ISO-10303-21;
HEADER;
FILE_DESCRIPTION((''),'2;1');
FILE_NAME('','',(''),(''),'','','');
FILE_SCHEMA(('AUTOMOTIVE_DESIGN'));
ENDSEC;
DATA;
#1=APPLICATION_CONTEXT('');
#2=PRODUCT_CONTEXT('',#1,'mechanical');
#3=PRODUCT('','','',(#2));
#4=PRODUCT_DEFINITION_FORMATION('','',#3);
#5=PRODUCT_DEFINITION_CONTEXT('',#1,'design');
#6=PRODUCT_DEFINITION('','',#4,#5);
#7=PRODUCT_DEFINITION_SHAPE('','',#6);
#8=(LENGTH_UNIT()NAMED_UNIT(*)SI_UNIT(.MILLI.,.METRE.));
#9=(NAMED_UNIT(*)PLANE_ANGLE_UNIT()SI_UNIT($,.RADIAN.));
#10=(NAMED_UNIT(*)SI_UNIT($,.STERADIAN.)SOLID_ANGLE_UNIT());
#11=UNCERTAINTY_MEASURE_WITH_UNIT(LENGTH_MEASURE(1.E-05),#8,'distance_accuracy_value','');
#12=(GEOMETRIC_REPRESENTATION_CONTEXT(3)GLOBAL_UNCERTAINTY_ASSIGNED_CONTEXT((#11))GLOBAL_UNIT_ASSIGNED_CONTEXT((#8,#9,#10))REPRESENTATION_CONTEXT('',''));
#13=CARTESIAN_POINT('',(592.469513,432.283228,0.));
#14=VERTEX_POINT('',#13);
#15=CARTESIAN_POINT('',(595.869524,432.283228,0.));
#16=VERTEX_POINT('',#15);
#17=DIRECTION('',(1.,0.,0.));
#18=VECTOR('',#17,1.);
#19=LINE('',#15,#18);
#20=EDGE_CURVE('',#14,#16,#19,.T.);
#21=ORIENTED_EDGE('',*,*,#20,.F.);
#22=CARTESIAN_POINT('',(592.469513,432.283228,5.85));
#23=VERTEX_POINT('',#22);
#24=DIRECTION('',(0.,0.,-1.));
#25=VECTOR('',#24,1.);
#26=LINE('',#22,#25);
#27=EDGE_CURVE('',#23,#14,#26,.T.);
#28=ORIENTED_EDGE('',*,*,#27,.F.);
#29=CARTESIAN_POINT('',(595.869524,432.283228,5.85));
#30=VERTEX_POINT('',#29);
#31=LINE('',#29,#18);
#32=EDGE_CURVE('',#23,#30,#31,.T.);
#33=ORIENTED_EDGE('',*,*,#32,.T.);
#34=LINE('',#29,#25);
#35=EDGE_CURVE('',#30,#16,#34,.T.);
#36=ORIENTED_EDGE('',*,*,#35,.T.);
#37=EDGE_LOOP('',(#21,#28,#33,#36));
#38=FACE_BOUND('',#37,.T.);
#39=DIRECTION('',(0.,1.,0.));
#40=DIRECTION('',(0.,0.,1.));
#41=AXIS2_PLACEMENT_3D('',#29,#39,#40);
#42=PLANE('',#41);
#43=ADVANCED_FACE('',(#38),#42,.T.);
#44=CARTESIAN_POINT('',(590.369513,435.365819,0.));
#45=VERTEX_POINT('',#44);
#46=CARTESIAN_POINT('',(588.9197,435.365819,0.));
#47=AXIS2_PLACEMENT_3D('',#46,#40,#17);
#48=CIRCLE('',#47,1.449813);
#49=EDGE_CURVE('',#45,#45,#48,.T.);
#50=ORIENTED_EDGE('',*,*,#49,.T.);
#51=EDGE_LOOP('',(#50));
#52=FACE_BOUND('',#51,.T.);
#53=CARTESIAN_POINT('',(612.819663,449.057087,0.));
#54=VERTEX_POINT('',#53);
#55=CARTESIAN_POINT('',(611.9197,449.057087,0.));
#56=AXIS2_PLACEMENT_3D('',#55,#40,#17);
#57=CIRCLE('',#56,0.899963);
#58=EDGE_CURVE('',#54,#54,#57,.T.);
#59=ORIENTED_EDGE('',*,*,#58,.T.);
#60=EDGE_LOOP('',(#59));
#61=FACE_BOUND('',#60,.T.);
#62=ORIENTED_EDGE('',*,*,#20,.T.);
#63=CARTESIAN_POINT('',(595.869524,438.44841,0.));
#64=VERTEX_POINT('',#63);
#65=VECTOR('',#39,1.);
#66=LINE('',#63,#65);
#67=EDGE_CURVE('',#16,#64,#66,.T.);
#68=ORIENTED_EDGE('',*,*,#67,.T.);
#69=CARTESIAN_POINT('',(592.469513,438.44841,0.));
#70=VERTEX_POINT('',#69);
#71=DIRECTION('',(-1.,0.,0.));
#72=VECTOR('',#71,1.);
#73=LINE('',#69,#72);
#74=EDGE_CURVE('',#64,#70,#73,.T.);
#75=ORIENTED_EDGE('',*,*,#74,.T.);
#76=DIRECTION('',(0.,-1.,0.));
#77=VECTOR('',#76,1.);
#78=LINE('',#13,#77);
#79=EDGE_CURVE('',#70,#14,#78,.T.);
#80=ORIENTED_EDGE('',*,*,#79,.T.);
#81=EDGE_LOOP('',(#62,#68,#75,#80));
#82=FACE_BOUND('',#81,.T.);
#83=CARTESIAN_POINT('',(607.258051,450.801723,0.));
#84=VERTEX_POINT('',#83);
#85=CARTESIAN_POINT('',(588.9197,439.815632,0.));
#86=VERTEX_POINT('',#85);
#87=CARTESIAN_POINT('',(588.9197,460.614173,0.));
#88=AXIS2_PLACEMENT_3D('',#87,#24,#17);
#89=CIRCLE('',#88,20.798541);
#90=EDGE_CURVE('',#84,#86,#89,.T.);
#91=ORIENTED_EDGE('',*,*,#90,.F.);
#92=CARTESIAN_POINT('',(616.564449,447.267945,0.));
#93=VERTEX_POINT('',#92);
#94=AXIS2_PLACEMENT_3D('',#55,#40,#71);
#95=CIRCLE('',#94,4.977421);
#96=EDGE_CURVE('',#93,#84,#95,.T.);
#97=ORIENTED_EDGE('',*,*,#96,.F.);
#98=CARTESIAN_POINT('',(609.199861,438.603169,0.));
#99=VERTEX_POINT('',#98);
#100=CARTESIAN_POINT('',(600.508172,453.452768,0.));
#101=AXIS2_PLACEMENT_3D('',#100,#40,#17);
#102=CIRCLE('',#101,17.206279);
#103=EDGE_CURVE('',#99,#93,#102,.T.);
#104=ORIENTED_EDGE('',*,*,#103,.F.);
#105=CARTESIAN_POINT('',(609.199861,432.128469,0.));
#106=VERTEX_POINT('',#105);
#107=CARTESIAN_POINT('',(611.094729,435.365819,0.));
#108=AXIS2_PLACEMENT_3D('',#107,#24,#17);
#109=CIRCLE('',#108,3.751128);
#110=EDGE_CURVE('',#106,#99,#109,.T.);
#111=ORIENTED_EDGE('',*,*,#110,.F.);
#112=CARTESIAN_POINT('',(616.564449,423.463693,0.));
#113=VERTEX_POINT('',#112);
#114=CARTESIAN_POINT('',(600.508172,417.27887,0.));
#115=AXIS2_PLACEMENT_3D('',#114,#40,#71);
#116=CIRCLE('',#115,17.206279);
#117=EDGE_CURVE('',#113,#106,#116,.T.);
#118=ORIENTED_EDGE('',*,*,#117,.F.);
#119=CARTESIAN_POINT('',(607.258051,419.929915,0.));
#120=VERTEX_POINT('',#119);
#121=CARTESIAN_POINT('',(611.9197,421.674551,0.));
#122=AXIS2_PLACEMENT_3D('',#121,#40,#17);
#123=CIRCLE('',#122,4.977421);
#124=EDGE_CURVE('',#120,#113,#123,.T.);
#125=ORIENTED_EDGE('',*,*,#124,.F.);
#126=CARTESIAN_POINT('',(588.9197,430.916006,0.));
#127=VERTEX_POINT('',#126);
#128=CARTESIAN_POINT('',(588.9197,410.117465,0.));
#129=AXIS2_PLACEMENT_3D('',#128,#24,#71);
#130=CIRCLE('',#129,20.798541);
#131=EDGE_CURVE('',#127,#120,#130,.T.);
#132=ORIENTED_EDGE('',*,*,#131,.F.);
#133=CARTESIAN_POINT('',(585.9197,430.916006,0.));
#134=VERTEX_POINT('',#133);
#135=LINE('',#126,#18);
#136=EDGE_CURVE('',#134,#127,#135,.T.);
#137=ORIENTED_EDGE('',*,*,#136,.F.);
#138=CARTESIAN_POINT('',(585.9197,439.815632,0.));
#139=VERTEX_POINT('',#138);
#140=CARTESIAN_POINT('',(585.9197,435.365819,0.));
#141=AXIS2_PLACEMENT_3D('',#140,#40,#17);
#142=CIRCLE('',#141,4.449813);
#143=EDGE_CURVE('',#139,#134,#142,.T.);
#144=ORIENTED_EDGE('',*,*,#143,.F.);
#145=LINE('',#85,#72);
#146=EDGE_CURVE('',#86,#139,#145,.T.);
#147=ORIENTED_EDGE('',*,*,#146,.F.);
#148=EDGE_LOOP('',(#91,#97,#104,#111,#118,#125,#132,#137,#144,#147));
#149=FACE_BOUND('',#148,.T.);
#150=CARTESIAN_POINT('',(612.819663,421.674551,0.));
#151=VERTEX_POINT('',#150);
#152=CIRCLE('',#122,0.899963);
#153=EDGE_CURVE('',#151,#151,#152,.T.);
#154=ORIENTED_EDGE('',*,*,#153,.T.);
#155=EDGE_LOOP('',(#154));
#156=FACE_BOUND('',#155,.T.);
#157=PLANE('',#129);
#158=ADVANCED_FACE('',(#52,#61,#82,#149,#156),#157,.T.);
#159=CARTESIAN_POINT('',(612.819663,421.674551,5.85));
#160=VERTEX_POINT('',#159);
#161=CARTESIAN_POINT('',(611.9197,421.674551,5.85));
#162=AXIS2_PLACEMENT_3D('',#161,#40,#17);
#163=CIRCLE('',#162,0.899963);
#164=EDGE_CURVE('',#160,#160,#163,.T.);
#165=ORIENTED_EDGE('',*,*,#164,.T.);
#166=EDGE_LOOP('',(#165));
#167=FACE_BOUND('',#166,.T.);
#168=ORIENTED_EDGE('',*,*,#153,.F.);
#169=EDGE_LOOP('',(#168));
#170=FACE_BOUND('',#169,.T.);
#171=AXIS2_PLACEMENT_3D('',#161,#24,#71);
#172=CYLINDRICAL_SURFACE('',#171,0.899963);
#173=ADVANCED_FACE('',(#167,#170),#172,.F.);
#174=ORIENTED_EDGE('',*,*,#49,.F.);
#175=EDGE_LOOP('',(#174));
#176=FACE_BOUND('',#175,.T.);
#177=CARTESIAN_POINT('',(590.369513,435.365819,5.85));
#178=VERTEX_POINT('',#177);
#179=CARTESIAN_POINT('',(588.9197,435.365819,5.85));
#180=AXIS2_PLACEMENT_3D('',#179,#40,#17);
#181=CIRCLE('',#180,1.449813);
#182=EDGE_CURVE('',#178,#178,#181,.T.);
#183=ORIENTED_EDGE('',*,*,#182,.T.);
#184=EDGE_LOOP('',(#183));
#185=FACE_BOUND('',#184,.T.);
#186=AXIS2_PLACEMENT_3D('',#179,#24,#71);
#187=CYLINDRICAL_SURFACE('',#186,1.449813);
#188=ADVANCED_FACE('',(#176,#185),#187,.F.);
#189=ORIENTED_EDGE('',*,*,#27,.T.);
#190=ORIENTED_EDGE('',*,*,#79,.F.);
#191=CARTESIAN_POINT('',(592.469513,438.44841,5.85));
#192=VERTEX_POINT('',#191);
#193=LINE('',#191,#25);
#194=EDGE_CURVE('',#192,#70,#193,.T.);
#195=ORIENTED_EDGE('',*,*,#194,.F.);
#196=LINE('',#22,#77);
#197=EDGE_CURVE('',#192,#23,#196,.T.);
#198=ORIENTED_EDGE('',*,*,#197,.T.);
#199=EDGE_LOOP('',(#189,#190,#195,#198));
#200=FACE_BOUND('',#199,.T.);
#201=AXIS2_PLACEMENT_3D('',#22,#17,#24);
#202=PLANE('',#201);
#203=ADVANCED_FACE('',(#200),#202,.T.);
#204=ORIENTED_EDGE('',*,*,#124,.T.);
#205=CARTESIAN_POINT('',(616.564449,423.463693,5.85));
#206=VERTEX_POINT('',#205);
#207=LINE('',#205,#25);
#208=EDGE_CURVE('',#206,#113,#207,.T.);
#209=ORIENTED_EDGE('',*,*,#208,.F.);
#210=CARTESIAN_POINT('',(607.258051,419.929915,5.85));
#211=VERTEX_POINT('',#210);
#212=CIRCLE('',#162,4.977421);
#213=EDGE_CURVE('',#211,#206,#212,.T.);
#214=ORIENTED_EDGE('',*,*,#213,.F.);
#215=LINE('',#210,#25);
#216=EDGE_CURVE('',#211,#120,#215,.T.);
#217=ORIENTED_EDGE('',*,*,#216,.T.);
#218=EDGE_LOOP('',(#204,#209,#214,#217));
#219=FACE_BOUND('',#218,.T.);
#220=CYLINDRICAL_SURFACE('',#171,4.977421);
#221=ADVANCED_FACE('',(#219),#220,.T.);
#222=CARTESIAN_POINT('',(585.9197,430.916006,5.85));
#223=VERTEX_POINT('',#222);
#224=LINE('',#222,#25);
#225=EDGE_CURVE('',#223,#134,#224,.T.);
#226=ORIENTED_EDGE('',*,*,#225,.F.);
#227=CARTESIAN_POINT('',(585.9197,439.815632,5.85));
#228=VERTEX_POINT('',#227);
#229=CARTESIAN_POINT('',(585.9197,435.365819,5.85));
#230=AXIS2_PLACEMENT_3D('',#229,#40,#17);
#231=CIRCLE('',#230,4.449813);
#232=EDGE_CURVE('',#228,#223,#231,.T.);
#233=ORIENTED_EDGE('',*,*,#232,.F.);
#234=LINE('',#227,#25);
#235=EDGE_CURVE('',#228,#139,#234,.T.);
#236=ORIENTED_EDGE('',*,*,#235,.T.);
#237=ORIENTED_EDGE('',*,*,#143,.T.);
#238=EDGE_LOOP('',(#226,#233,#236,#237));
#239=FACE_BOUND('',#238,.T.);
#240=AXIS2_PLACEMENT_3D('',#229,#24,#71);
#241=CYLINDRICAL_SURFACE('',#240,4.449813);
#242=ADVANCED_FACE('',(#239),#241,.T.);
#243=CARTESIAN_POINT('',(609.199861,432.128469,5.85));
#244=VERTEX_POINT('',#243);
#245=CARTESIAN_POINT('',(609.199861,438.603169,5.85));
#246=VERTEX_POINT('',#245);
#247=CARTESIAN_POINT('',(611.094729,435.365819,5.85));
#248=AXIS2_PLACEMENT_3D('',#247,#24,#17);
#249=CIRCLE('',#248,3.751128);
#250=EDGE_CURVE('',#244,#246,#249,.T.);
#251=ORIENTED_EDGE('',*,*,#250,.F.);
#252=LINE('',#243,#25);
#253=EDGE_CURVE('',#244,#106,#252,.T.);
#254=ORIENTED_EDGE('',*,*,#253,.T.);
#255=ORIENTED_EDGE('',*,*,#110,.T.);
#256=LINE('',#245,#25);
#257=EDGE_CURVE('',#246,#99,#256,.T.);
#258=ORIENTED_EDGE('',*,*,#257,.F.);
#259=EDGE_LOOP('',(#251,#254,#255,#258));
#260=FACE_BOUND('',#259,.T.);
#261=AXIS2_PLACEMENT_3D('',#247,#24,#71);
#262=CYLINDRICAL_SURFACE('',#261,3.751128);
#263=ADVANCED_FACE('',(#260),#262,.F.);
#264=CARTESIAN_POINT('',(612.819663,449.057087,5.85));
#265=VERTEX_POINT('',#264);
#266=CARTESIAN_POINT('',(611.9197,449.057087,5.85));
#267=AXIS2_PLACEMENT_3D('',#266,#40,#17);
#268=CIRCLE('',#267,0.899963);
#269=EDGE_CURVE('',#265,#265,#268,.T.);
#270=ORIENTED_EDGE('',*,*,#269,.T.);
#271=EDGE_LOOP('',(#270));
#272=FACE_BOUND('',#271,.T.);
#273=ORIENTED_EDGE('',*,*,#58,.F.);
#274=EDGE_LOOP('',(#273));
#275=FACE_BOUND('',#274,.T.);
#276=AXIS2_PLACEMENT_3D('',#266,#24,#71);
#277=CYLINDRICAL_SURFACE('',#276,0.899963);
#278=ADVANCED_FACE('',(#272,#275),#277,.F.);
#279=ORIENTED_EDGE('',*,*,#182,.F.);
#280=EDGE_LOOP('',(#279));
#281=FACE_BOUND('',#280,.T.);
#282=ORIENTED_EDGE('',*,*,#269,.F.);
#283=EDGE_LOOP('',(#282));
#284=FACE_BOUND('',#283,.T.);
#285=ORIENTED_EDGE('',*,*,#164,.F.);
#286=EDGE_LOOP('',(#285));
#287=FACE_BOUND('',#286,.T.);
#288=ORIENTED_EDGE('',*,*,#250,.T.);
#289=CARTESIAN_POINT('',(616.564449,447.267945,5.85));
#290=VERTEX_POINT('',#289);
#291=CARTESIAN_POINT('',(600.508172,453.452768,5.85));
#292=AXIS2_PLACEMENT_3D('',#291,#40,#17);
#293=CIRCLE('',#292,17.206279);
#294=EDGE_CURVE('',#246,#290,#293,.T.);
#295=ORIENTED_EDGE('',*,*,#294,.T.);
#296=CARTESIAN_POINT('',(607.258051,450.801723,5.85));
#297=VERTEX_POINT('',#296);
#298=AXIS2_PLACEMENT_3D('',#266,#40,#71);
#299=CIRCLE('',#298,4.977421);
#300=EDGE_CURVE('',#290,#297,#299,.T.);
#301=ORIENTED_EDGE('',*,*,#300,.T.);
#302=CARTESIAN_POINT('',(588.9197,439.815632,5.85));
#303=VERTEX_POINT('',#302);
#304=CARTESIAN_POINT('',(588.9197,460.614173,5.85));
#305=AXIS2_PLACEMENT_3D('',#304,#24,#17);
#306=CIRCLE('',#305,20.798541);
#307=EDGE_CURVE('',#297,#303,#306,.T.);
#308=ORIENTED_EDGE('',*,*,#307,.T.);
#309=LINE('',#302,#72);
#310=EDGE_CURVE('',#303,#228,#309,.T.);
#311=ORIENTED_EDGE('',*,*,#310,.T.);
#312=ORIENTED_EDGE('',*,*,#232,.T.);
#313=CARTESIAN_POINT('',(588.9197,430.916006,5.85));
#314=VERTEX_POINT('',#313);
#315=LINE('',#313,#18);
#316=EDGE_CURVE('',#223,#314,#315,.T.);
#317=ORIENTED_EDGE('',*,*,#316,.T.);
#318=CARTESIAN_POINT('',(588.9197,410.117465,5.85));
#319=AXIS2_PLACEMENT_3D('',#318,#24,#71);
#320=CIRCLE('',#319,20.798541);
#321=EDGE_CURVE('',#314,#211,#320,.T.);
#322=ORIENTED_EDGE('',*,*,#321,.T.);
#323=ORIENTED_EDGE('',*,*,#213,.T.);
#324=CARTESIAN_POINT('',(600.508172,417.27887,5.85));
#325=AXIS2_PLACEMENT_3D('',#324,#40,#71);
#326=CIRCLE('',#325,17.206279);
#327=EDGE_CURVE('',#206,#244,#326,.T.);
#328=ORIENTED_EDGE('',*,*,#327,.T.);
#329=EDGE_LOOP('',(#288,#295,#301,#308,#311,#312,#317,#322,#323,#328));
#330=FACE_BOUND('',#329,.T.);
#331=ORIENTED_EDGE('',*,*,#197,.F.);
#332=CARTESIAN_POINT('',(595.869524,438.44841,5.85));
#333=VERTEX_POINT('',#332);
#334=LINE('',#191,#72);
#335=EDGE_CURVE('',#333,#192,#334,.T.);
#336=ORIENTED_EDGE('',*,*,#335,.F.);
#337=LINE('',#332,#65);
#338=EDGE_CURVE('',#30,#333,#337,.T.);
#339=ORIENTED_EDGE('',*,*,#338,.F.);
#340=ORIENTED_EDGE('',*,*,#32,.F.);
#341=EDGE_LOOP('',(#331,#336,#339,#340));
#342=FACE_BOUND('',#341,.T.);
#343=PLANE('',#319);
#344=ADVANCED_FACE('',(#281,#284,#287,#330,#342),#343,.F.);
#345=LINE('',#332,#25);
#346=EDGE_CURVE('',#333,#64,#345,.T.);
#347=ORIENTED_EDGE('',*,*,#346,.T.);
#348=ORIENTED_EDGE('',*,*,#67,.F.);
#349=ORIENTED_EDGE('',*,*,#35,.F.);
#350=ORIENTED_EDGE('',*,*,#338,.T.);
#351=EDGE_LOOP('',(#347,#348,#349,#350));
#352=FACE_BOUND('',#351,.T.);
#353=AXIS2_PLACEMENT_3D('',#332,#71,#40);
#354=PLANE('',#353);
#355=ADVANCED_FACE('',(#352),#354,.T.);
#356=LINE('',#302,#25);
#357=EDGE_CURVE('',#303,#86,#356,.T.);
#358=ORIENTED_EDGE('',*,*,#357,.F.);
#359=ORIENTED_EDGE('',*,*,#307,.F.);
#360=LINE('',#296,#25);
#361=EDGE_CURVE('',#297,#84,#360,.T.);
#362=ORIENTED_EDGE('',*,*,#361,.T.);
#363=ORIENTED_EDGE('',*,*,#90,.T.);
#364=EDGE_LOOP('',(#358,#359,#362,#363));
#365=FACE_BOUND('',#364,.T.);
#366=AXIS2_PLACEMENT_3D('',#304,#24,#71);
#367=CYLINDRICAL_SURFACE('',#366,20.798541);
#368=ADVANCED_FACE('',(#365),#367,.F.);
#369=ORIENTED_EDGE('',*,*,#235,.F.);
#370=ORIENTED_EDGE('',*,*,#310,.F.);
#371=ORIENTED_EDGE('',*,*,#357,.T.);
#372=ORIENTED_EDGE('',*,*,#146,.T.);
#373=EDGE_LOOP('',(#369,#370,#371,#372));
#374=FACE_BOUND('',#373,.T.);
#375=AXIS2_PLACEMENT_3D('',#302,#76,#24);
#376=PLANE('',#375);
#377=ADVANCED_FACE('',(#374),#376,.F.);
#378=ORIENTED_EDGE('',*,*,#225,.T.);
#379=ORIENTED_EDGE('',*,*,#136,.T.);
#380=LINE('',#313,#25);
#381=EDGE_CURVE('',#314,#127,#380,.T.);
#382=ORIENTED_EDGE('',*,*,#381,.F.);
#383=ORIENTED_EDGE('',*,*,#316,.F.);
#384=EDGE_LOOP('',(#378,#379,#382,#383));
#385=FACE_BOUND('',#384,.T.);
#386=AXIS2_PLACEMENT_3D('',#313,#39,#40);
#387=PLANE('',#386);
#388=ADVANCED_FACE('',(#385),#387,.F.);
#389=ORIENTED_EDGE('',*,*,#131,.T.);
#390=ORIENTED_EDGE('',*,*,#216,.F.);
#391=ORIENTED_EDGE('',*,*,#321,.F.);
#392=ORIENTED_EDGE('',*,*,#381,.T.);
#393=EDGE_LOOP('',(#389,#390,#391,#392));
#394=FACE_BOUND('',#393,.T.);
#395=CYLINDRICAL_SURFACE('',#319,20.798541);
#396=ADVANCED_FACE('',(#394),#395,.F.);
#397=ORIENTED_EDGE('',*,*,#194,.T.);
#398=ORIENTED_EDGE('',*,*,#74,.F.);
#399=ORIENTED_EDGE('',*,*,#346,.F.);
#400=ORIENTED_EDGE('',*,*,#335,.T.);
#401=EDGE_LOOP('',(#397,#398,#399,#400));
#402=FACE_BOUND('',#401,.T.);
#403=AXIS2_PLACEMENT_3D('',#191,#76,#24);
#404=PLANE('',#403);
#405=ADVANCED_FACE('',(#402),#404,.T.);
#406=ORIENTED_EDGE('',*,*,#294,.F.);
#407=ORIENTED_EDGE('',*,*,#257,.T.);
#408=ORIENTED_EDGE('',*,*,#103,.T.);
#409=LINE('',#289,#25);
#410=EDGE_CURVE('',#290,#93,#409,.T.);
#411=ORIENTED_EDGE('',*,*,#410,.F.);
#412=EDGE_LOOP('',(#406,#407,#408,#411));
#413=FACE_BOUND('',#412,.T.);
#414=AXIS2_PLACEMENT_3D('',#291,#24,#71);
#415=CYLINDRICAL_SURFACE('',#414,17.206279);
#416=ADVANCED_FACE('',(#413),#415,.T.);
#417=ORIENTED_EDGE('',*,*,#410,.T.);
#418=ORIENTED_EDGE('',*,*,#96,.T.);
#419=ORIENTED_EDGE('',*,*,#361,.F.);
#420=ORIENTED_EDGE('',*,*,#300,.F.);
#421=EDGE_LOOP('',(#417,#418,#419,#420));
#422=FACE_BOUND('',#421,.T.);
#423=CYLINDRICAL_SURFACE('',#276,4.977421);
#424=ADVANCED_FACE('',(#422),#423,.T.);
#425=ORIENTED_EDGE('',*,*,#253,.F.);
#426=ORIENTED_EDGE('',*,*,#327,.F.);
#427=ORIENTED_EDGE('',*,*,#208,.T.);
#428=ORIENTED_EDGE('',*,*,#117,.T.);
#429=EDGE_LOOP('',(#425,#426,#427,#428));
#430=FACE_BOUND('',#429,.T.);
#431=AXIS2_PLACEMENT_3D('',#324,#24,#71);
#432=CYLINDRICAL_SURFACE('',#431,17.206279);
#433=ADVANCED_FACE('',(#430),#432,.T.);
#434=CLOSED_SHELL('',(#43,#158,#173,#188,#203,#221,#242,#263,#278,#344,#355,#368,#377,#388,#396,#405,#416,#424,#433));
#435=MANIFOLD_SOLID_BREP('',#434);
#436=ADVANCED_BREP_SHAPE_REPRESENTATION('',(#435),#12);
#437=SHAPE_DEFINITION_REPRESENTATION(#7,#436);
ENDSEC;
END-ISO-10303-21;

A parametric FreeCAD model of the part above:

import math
import FreeCAD as App
import Part
import Sketcher
from FreeCAD import Vector
Q = App.Units.Quantity


def add_polygon(sketch, points):
    """Adds a closed chain of lines whose ends are joined by coincident constraints."""
    first, n = sketch.GeometryCount, len(points)
    for a, b in zip(points, points[1:] + points[:1]):
        sketch.addGeometry(Part.LineSegment(App.Vector(*a, 0), App.Vector(*b, 0)), False)
    for i in range(n):
        sketch.addConstraint(Sketcher.Constraint("Coincident", first + i, 2, first + (i + 1) % n, 1))

doc = App.newDocument("Part")
body = doc.addObject("PartDesign::Body", "Body")

# Sketch on XY plane
sketch1 = body.newObject("Sketcher::SketchObject", "Sketch")
sketch1.AttachmentSupport = (doc.getObject("XY_Plane"), [""])
sketch1.MapMode = "FlatFace"
sketch1.addGeometry(Part.LineSegment(Vector(588.9, 439.8, 0), Vector(585.9, 439.8, 0)), False)  # 0
sketch1.addGeometry(Part.ArcOfCircle(Part.Circle(Vector(585.9, 435.4, 0), Vector(0, 0, 1), 4.4), math.radians(90), math.radians(270)), False)  # 1
sketch1.addGeometry(Part.LineSegment(Vector(585.9, 430.9, 0), Vector(588.9, 430.9, 0)), False)  # 2
sketch1.addGeometry(Part.ArcOfCircle(Part.Circle(Vector(588.9, 410.1, 0), Vector(0, 0, 1), 20.8), math.radians(28), math.radians(90)), False)  # 3
sketch1.addGeometry(Part.ArcOfCircle(Part.Circle(Vector(611.9, 421.7, 0), Vector(0, 0, 1), 5), math.radians(-159), math.radians(21)), False)  # 4
sketch1.addGeometry(Part.ArcOfCircle(Part.Circle(Vector(600.5, 417.3, 0), Vector(0, 0, 1), 17.2), math.radians(21), math.radians(60)), False)  # 5
sketch1.addGeometry(Part.ArcOfCircle(Part.Circle(Vector(611.1, 435.4, 0), Vector(0, 0, 1), 3.8), math.radians(120), math.radians(240)), False)  # 6
sketch1.addGeometry(Part.ArcOfCircle(Part.Circle(Vector(600.5, 453.5, 0), Vector(0, 0, 1), 17.2), math.radians(-60), math.radians(-21)), False)  # 7
sketch1.addGeometry(Part.ArcOfCircle(Part.Circle(Vector(611.9, 449.1, 0), Vector(0, 0, 1), 5), math.radians(-21), math.radians(159)), False)  # 8
sketch1.addGeometry(Part.ArcOfCircle(Part.Circle(Vector(588.9, 460.6, 0), Vector(0, 0, 1), 20.8), math.radians(-90), math.radians(-28)), False)  # 9
sketch1.addGeometry(Part.Circle(Vector(588.9, 435.4, 0), Vector(0, 0, 1), 1.4), False)  # 10
sketch1.addGeometry(Part.Circle(Vector(611.9, 421.7, 0), Vector(0, 0, 1), 0.9), False)  # 11
add_polygon(sketch1, [(595.9, 432.3), (592.5, 432.3), (592.5, 438.4), (595.9, 438.4)])  # lines 12-15
sketch1.addGeometry(Part.Circle(Vector(611.9, 449.1, 0), Vector(0, 0, 1), 0.9), False)  # 16
sketch1.addConstraint([
    Sketcher.Constraint("Tangent", 0, 2, 1, 1),
    Sketcher.Constraint("Tangent", 1, 2, 2, 1),
    Sketcher.Constraint("Tangent", 2, 2, 3, 2),
    Sketcher.Constraint("Coincident", 3, 1, 4, 1),
    Sketcher.Constraint("Tangent", 4, 2, 5, 1),
    Sketcher.Constraint("Tangent", 5, 2, 6, 2),
    Sketcher.Constraint("Tangent", 6, 1, 7, 1),
    Sketcher.Constraint("Tangent", 7, 2, 8, 1),
    Sketcher.Constraint("Coincident", 8, 2, 9, 2),
    Sketcher.Constraint("Tangent", 9, 1, 0, 1),
    Sketcher.Constraint("Horizontal", 0),
    Sketcher.Constraint("Horizontal", 2),
    Sketcher.Constraint("Horizontal", 12),
    Sketcher.Constraint("Vertical", 13),
    Sketcher.Constraint("Horizontal", 14),
    Sketcher.Constraint("Vertical", 15),
    Sketcher.Constraint("Coincident", 11, 3, 4, 3),
    Sketcher.Constraint("Coincident", 16, 3, 8, 3),
    Sketcher.Constraint("Equal", 5, 7),
    Sketcher.Constraint("Equal", 4, 8),
    Sketcher.Constraint("Equal", 3, 9),
    Sketcher.Constraint("Equal", 11, 16),
    Sketcher.Constraint("Horizontal", 1, 3, 6, 3),
    Sketcher.Constraint("Horizontal", 6, 3, 10, 3),
    Sketcher.Constraint("Vertical", 5, 3, 7, 3),
    Sketcher.Constraint("Vertical", 4, 3, 8, 3),
    Sketcher.Constraint("Vertical", 3, 3, 9, 3),
    Sketcher.Constraint("Vertical", 9, 3, 10, 3),
    Sketcher.Constraint("DistanceX", 0, 2, 0, 1, Q("3 mm")),
    Sketcher.Constraint("DistanceX", 3, 3, 4, 3, Q("23 mm")),
    Sketcher.Constraint("Radius", 3, Q("20.798541 mm")),
    Sketcher.Constraint("Radius", 4, Q("4.977421 mm")),
    Sketcher.Constraint("Radius", 5, Q("17.206279 mm")),
    Sketcher.Constraint("Diameter", 10, Q("2.899626 mm")),
    Sketcher.Constraint("Diameter", 11, Q("1.799926 mm")),
    Sketcher.Constraint("Radius", 1, Q("4.449813 mm")),
    Sketcher.Constraint("Radius", 6, Q("3.751128 mm")),
    Sketcher.Constraint("DistanceX", 12, 2, 12, 1, Q("3.400011 mm")),
    Sketcher.Constraint("DistanceX", -1, 1, 1, 3, Q("585.9197 mm")),
    Sketcher.Constraint("DistanceY", 5, 2, 6, 1, Q("6.474699 mm")),
    Sketcher.Constraint("DistanceY", 13, 1, 13, 2, Q("6.165183 mm")),
    Sketcher.Constraint("DistanceY", -1, 1, 1, 3, Q("435.365819 mm")),
    Sketcher.Constraint("DistanceY", -1, 1, 4, 3, Q("421.674551 mm")),
    Sketcher.Constraint("DistanceY", -1, 1, 13, 2, Q("438.44841 mm")),
    Sketcher.Constraint("DistanceX", -1, 1, 12, 2, Q("592.469513 mm")),
])
pad1 = body.newObject("PartDesign::Pad", "Pad")
pad1.Profile = sketch1
pad1.Length = 5.85

doc.recompute()
